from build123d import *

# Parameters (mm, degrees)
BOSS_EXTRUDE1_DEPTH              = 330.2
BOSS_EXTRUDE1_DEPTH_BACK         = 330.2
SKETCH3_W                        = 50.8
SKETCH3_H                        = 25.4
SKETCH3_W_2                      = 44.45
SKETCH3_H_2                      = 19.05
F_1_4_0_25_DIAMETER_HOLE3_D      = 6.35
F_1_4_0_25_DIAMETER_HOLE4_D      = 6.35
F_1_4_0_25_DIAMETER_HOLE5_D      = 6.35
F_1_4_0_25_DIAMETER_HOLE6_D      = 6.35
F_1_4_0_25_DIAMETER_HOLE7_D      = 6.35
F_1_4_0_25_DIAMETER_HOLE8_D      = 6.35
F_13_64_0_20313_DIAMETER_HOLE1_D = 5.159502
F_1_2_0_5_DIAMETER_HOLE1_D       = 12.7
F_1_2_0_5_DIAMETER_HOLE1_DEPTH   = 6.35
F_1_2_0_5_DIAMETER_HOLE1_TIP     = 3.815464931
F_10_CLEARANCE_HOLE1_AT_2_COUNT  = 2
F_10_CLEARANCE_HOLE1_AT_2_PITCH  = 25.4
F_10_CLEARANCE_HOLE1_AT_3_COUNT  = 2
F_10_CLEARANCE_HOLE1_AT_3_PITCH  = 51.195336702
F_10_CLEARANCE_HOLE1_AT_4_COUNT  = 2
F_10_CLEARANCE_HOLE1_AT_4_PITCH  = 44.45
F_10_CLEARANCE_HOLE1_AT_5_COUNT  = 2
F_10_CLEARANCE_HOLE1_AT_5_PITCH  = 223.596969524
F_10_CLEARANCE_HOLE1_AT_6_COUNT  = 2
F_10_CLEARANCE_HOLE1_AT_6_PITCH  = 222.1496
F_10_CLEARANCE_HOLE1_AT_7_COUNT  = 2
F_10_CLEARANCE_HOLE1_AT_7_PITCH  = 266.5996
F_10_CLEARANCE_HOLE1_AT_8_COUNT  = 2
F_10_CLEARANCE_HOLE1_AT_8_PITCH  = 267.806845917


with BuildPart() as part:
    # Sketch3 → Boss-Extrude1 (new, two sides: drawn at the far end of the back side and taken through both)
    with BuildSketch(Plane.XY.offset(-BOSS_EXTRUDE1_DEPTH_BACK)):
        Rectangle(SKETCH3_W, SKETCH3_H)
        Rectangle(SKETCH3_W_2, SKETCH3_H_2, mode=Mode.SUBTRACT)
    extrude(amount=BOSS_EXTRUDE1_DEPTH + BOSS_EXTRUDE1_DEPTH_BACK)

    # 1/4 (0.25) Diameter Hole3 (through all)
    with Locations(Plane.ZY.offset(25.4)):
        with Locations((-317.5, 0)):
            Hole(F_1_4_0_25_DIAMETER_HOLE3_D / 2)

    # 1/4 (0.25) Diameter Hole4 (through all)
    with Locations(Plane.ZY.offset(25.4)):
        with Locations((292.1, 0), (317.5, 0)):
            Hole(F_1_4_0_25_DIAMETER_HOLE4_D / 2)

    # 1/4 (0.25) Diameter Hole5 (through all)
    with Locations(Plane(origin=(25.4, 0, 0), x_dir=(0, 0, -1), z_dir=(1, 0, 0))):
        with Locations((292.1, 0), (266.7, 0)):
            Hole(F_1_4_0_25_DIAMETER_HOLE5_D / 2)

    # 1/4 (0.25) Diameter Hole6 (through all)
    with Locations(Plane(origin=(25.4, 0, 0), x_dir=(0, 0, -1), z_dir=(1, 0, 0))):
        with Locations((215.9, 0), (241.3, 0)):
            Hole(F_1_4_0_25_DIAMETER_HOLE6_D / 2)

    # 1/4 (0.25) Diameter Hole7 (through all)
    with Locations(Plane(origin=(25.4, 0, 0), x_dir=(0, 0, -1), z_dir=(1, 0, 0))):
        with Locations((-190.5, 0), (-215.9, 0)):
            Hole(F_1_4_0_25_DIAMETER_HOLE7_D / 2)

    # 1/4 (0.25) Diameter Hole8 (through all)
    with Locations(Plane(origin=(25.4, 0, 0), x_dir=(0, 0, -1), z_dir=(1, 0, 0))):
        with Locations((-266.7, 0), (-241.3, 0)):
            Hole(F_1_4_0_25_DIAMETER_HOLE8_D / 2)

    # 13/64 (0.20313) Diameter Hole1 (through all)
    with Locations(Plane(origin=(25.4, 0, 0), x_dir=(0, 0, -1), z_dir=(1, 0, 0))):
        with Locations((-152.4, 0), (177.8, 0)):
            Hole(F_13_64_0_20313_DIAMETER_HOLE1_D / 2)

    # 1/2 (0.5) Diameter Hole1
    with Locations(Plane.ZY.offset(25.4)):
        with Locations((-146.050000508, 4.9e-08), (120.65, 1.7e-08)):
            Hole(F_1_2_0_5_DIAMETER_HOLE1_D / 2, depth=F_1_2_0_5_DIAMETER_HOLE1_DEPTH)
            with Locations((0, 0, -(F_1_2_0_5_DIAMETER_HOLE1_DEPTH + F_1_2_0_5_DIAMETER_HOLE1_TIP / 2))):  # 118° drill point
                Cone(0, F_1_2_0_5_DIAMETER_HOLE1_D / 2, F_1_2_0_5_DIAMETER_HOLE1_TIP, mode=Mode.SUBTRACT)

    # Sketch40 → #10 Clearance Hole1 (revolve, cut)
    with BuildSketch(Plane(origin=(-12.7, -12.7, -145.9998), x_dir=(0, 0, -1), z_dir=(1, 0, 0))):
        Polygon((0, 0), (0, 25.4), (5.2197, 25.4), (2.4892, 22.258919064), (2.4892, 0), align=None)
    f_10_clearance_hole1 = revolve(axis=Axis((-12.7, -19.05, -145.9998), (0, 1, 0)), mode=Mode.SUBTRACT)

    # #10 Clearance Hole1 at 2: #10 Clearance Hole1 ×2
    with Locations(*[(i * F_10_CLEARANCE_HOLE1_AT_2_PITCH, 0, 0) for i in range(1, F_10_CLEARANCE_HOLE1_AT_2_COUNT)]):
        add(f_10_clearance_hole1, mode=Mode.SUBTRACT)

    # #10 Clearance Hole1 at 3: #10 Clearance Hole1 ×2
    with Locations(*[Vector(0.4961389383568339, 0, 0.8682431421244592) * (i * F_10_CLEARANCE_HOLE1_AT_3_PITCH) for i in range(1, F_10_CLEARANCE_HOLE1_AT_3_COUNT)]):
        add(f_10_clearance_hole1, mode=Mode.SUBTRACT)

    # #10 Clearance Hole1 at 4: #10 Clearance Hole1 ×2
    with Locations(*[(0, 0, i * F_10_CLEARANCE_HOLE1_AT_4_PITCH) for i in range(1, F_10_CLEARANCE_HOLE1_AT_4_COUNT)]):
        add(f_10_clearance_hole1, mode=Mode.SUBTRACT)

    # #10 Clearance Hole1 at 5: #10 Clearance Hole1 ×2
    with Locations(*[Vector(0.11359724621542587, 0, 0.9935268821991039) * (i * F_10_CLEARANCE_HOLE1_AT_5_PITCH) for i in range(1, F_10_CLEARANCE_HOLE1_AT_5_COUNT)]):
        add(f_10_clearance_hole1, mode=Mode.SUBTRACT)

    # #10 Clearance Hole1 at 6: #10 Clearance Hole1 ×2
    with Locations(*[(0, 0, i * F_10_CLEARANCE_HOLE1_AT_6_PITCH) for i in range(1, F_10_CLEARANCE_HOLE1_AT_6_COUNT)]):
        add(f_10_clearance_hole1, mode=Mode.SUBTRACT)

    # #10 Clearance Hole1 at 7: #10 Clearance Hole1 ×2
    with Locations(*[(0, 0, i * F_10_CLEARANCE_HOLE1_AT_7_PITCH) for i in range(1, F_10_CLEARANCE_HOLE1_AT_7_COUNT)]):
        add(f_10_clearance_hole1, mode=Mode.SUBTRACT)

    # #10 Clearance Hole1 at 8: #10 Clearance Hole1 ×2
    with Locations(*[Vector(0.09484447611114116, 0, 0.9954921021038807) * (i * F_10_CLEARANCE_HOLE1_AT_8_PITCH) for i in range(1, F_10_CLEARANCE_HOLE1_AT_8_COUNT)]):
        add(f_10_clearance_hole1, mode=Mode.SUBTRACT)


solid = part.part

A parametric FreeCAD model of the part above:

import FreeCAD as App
import Part
import Sketcher
Q = App.Units.Quantity


def add_polygon(sketch, points):
    """Adds a closed chain of lines whose ends are joined by coincident constraints."""
    first, n = sketch.GeometryCount, len(points)
    for a, b in zip(points, points[1:] + points[:1]):
        sketch.addGeometry(Part.LineSegment(App.Vector(*a, 0), App.Vector(*b, 0)), False)
    for i in range(n):
        sketch.addConstraint(Sketcher.Constraint("Coincident", first + i, 2, first + (i + 1) % n, 1))

doc = App.newDocument("Part")
body = doc.addObject("PartDesign::Body", "Body")

sketch1 = body.newObject("Sketcher::SketchObject", "Sketch")
sketch1.AttachmentSupport = (doc.getObject("XY_Plane"), [""])
sketch1.MapMode = "FlatFace"
add_polygon(sketch1, [(-25.4, 12.7), (-25.4, -12.7), (25.4, -12.7), (25.4, 12.7)])
add_polygon(sketch1, [(22.225, -9.525), (-22.225, -9.525), (-22.225, 9.525), (22.225, 9.525)])
sketch1.addConstraint([
    Sketcher.Constraint("Vertical", 0),
    Sketcher.Constraint("Horizontal", 1),
    Sketcher.Constraint("Vertical", 2),
    Sketcher.Constraint("Horizontal", 3),
    Sketcher.Constraint("Horizontal", 4),
    Sketcher.Constraint("Vertical", 5),
    Sketcher.Constraint("Horizontal", 6),
    Sketcher.Constraint("Vertical", 7),
    Sketcher.Constraint("Symmetric", 0, 2, 2, 2, -1, 1),
    Sketcher.Constraint("Symmetric", 4, 2, 6, 2, -1, 1),
    Sketcher.Constraint("DistanceX", 1, 1, 1, 2, Q("2 in")),
    Sketcher.Constraint("DistanceY", 0, 2, 0, 1, Q("1 in")),
    Sketcher.Constraint("DistanceX", 4, 2, 4, 1, Q("1.75 in")),
    Sketcher.Constraint("DistanceY", 5, 1, 5, 2, Q("0.75 in")),
])
pad1 = body.newObject("PartDesign::Pad", "Pad")
pad1.Profile = sketch1
pad1.Type = "TwoLengths"
pad1.Length = Q("13 in")
pad1.Length2 = Q("13 in")

sketch2 = body.newObject("Sketcher::SketchObject", "Sketch001")
sketch2.AttachmentSupport = (doc.getObject("YZ_Plane"), [""])
sketch2.MapMode = "FlatFace"
sketch2.AttachmentOffset = App.Placement(App.Vector(0, 0, -1 * 25.4), App.Rotation())
sketch2.addGeometry(Part.Circle(App.Vector(0, -317.5, 0), App.Vector(0, 0, 1), 3.175), False)
sketch2.addConstraint([
    Sketcher.Constraint("PointOnObject", 0, 3, -2),
    Sketcher.Constraint("Diameter", 0, Q("0.25 in")),
    Sketcher.Constraint("DistanceY", 0, 3, -1, 1, Q("12.5 in")),
])
doc.recompute()
hole = body.newObject("PartDesign::Hole", "Hole")
hole.Profile = sketch2
hole.ThreadType = "None"
hole.Diameter = Q("0.25 in")
hole.DepthType = "ThroughAll"
hole.Reversed = True

sketch3 = body.newObject("Sketcher::SketchObject", "Sketch002")
sketch3.AttachmentSupport = (doc.getObject("YZ_Plane"), [""])
sketch3.MapMode = "FlatFace"
sketch3.AttachmentOffset = App.Placement(App.Vector(0, 0, -1 * 25.4), App.Rotation())
sketch3.addGeometry([
    Part.Circle(App.Vector(0, 292.1, 0), App.Vector(0, 0, 1), 3.175),
    Part.Circle(App.Vector(0, 317.5, 0), App.Vector(0, 0, 1), 3.175),
], False)
sketch3.addConstraint([
    Sketcher.Constraint("Equal", 0, 1),
    Sketcher.Constraint("PointOnObject", 0, 3, -2),
    Sketcher.Constraint("PointOnObject", 1, 3, -2),
    Sketcher.Constraint("Diameter", 0, Q("0.25 in")),
    Sketcher.Constraint("DistanceY", 0, 3, 1, 3, Q("1 in")),
    Sketcher.Constraint("DistanceY", -1, 1, 0, 3, Q("11.5 in")),
])
doc.recompute()
hole2 = body.newObject("PartDesign::Hole", "Hole001")
hole2.Profile = sketch3
hole2.ThreadType = "None"
hole2.Diameter = Q("0.25 in")
hole2.DepthType = "ThroughAll"
hole2.Reversed = True

sketch4 = body.newObject("Sketcher::SketchObject", "Sketch003")
sketch4.AttachmentSupport = (doc.getObject("YZ_Plane"), [""])
sketch4.MapMode = "FlatFace"
sketch4.AttachmentOffset = App.Placement(App.Vector(0, 0, 1 * 25.4), App.Rotation())
sketch4.addGeometry([
    Part.Circle(App.Vector(0, -292.1, 0), App.Vector(0, 0, 1), 3.175),
    Part.Circle(App.Vector(0, -266.7, 0), App.Vector(0, 0, 1), 3.175),
], False)
sketch4.addConstraint([
    Sketcher.Constraint("Equal", 0, 1),
    Sketcher.Constraint("PointOnObject", 0, 3, -2),
    Sketcher.Constraint("PointOnObject", 1, 3, -2),
    Sketcher.Constraint("Diameter", 0, Q("0.25 in")),
    Sketcher.Constraint("DistanceY", 0, 3, 1, 3, Q("1 in")),
    Sketcher.Constraint("DistanceY", 0, 3, -1, 1, Q("11.5 in")),
])
doc.recompute()
hole3 = body.newObject("PartDesign::Hole", "Hole002")
hole3.Profile = sketch4
hole3.ThreadType = "None"
hole3.Diameter = Q("0.25 in")
hole3.DepthType = "ThroughAll"

sketch5 = body.newObject("Sketcher::SketchObject", "Sketch004")
sketch5.AttachmentSupport = (doc.getObject("YZ_Plane"), [""])
sketch5.MapMode = "FlatFace"
sketch5.AttachmentOffset = App.Placement(App.Vector(0, 0, 1 * 25.4), App.Rotation())
sketch5.addGeometry([
    Part.Circle(App.Vector(0, -215.9, 0), App.Vector(0, 0, 1), 3.175),
    Part.Circle(App.Vector(0, -241.3, 0), App.Vector(0, 0, 1), 3.175),
], False)
sketch5.addConstraint([
    Sketcher.Constraint("Equal", 0, 1),
    Sketcher.Constraint("PointOnObject", 0, 3, -2),
    Sketcher.Constraint("PointOnObject", 1, 3, -2),
    Sketcher.Constraint("Diameter", 0, Q("0.25 in")),
    Sketcher.Constraint("DistanceY", 1, 3, 0, 3, Q("1 in")),
    Sketcher.Constraint("DistanceY", 0, 3, -1, 1, Q("8.5 in")),
])
doc.recompute()
hole4 = body.newObject("PartDesign::Hole", "Hole003")
hole4.Profile = sketch5
hole4.ThreadType = "None"
hole4.Diameter = Q("0.25 in")
hole4.DepthType = "ThroughAll"

sketch6 = body.newObject("Sketcher::SketchObject", "Sketch005")
sketch6.AttachmentSupport = (doc.getObject("YZ_Plane"), [""])
sketch6.MapMode = "FlatFace"
sketch6.AttachmentOffset = App.Placement(App.Vector(0, 0, 1 * 25.4), App.Rotation())
sketch6.addGeometry([
    Part.Circle(App.Vector(0, 190.5, 0), App.Vector(0, 0, 1), 3.175),
    Part.Circle(App.Vector(0, 215.9, 0), App.Vector(0, 0, 1), 3.175),
], False)
sketch6.addConstraint([
    Sketcher.Constraint("Equal", 0, 1),
    Sketcher.Constraint("PointOnObject", 0, 3, -2),
    Sketcher.Constraint("PointOnObject", 1, 3, -2),
    Sketcher.Constraint("Diameter", 0, Q("0.25 in")),
    Sketcher.Constraint("DistanceY", 0, 3, 1, 3, Q("1 in")),
    Sketcher.Constraint("DistanceY", -1, 1, 0, 3, Q("7.5 in")),
])
doc.recompute()
hole5 = body.newObject("PartDesign::Hole", "Hole004")
hole5.Profile = sketch6
hole5.ThreadType = "None"
hole5.Diameter = Q("0.25 in")
hole5.DepthType = "ThroughAll"

sketch7 = body.newObject("Sketcher::SketchObject", "Sketch006")
sketch7.AttachmentSupport = (doc.getObject("YZ_Plane"), [""])
sketch7.MapMode = "FlatFace"
sketch7.AttachmentOffset = App.Placement(App.Vector(0, 0, 1 * 25.4), App.Rotation())
sketch7.addGeometry([
    Part.Circle(App.Vector(0, 266.7, 0), App.Vector(0, 0, 1), 3.175),
    Part.Circle(App.Vector(0, 241.3, 0), App.Vector(0, 0, 1), 3.175),
], False)
sketch7.addConstraint([
    Sketcher.Constraint("Equal", 0, 1),
    Sketcher.Constraint("PointOnObject", 0, 3, -2),
    Sketcher.Constraint("PointOnObject", 1, 3, -2),
    Sketcher.Constraint("Diameter", 0, Q("0.25 in")),
    Sketcher.Constraint("DistanceY", 1, 3, 0, 3, Q("1 in")),
    Sketcher.Constraint("DistanceY", -1, 1, 0, 3, Q("10.5 in")),
])
doc.recompute()
hole6 = body.newObject("PartDesign::Hole", "Hole005")
hole6.Profile = sketch7
hole6.ThreadType = "None"
hole6.Diameter = Q("0.25 in")
hole6.DepthType = "ThroughAll"

sketch8 = body.newObject("Sketcher::SketchObject", "Sketch007")
sketch8.AttachmentSupport = (doc.getObject("YZ_Plane"), [""])
sketch8.MapMode = "FlatFace"
sketch8.AttachmentOffset = App.Placement(App.Vector(0, 0, 1 * 25.4), App.Rotation())
sketch8.addGeometry([
    Part.Circle(App.Vector(0, 152.4, 0), App.Vector(0, 0, 1), 2.579751),
    Part.Circle(App.Vector(0, -177.8, 0), App.Vector(0, 0, 1), 2.579751),
], False)
sketch8.addConstraint([
    Sketcher.Constraint("Equal", 0, 1),
    Sketcher.Constraint("PointOnObject", 0, 3, -2),
    Sketcher.Constraint("PointOnObject", 1, 3, -2),
    Sketcher.Constraint("DistanceY", -1, 1, 0, 3, Q("6 in")),
    Sketcher.Constraint("DistanceY", 1, 3, -1, 1, Q("7 in")),
    Sketcher.Constraint("Diameter", 0, Q("5.159502 mm")),
])
doc.recompute()
hole7 = body.newObject("PartDesign::Hole", "Hole006")
hole7.Profile = sketch8
hole7.ThreadType = "None"
hole7.Diameter = 5.159502
hole7.DepthType = "ThroughAll"

sketch9 = body.newObject("Sketcher::SketchObject", "Sketch008")
sketch9.AttachmentSupport = (doc.getObject("YZ_Plane"), [""])
sketch9.MapMode = "FlatFace"
sketch9.AttachmentOffset = App.Placement(App.Vector(0, 0, -1 * 25.4), App.Rotation())
sketch9.addGeometry([
    Part.Circle(App.Vector(0, -146.050001, 0), App.Vector(0, 0, 1), 6.35),
    Part.Circle(App.Vector(0, 120.65, 0), App.Vector(0, 0, 1), 6.35),
], False)
sketch9.addConstraint([
    Sketcher.Constraint("Equal", 0, 1),
    Sketcher.Constraint("PointOnObject", 0, 3, -2),
    Sketcher.Constraint("PointOnObject", 1, 3, -2),
    Sketcher.Constraint("Diameter", 0, Q("0.5 in")),
    Sketcher.Constraint("DistanceY", 0, 3, 1, 3, Q("10.5 in")),
    Sketcher.Constraint("DistanceY", 0, 3, -1, 1, Q("5.75 in")),
])
doc.recompute()
hole8 = body.newObject("PartDesign::Hole", "Hole007")
hole8.Profile = sketch9
hole8.ThreadType = "None"
hole8.Diameter = Q("0.5 in")
hole8.DepthType = "Dimension"
hole8.Depth = Q("0.25 in")
hole8.DrillPoint = "Angled"
hole8.DrillPointAngle = 118
hole8.Reversed = True

sketch10 = body.newObject("Sketcher::SketchObject", "Sketch009")
sketch10.AttachmentSupport = (doc.getObject("YZ_Plane"), [""])
sketch10.MapMode = "FlatFace"
sketch10.AttachmentOffset = App.Placement(App.Vector(0, 0, -0.5 * 25.4), App.Rotation())
add_polygon(sketch10, [(12.7, -145.9998), (-12.7, -145.9998), (-12.7, -148.489), (9.558919, -148.489), (12.7, -151.2195)])
sketch10.addGeometry(Part.LineSegment(App.Vector(-12.7, -145.9998, 0), App.Vector(12.7, -145.9998, 0)), True)
sketch10.addConstraint([
    Sketcher.Constraint("Horizontal", 0),
    Sketcher.Constraint("Vertical", 1),
    Sketcher.Constraint("Horizontal", 2),
    Sketcher.Constraint("Vertical", 4),
    Sketcher.Constraint("Horizontal", 5),
    Sketcher.Constraint("Coincident", 5, 1, 0, 2),
    Sketcher.Constraint("Vertical", 3, 2, 5, 2),
    Sketcher.Constraint("DistanceX", 0, 2, 0, 1, Q("1 in")),
    Sketcher.Constraint("Angle", 3, Q("-41 deg")),
    Sketcher.Constraint("DistanceX", 0, 2, -1, 1, Q("0.5 in")),
    Sketcher.Constraint("DistanceY", 1, 2, 1, 1, Q("0.098 in")),
    Sketcher.Constraint("DistanceY", 4, 1, 4, 2, Q("0.2055 in")),
    Sketcher.Constraint("DistanceY", 0, 2, -1, 1, Q("145.9998 mm")),
])
groove = body.newObject("PartDesign::Groove", "Groove")
groove.Profile = sketch10
groove.ReferenceAxis = (sketch10, ["Axis0"])
groove.Angle = 360
doc.recompute()

linearpattern = body.newObject("PartDesign::LinearPattern", "LinearPattern")
linearpattern.Originals = [groove]
linearpattern.Direction = (doc.getObject("X_Axis"), [""])
linearpattern.Mode = "offset"
linearpattern.Offset = Q("1 in")
linearpattern.Occurrences = 2
body.Tip = linearpattern
doc.recompute()

datumline = body.newObject("PartDesign::Line", "DatumLine")
datumline.Placement = App.Placement(App.Vector(0, 0, 0), App.Rotation(App.Vector(0, 0, 1), App.Vector(0.496138938, 0, 0.868243142)))
linearpattern2 = body.newObject("PartDesign::LinearPattern", "LinearPattern001")
linearpattern2.Originals = [groove]
linearpattern2.Direction = (datumline, [""])
linearpattern2.Mode = "offset"
linearpattern2.Offset = 51.195337
linearpattern2.Occurrences = 2
body.Tip = linearpattern2
doc.recompute()

linearpattern3 = body.newObject("PartDesign::LinearPattern", "LinearPattern002")
linearpattern3.Originals = [groove]
linearpattern3.Direction = (doc.getObject("Z_Axis"), [""])
linearpattern3.Mode = "offset"
linearpattern3.Offset = Q("1.75 in")
linearpattern3.Occurrences = 2
body.Tip = linearpattern3
doc.recompute()

datumline2 = body.newObject("PartDesign::Line", "DatumLine001")
datumline2.Placement = App.Placement(App.Vector(0, 0, 0), App.Rotation(App.Vector(0, 0, 1), App.Vector(0.113597246, 0, 0.993526882)))
linearpattern4 = body.newObject("PartDesign::LinearPattern", "LinearPattern003")
linearpattern4.Originals = [groove]
linearpattern4.Direction = (datumline2, [""])
linearpattern4.Mode = "offset"
linearpattern4.Offset = 223.59697
linearpattern4.Occurrences = 2
body.Tip = linearpattern4
doc.recompute()

linearpattern5 = body.newObject("PartDesign::LinearPattern", "LinearPattern004")
linearpattern5.Originals = [groove]
linearpattern5.Direction = (doc.getObject("Z_Axis"), [""])
linearpattern5.Mode = "offset"
linearpattern5.Offset = 222.1496
linearpattern5.Occurrences = 2
body.Tip = linearpattern5
doc.recompute()

linearpattern6 = body.newObject("PartDesign::LinearPattern", "LinearPattern005")
linearpattern6.Originals = [groove]
linearpattern6.Direction = (doc.getObject("Z_Axis"), [""])
linearpattern6.Mode = "offset"
linearpattern6.Offset = 266.5996
linearpattern6.Occurrences = 2
body.Tip = linearpattern6
doc.recompute()

datumline3 = body.newObject("PartDesign::Line", "DatumLine002")
datumline3.Placement = App.Placement(App.Vector(0, 0, 0), App.Rotation(App.Vector(0, 0, 1), App.Vector(0.094844476, 0, 0.995492102)))
linearpattern7 = body.newObject("PartDesign::LinearPattern", "LinearPattern006")
linearpattern7.Originals = [groove]
linearpattern7.Direction = (datumline3, [""])
linearpattern7.Mode = "offset"
linearpattern7.Offset = 267.806846
linearpattern7.Occurrences = 2
body.Tip = linearpattern7

doc.recompute()
